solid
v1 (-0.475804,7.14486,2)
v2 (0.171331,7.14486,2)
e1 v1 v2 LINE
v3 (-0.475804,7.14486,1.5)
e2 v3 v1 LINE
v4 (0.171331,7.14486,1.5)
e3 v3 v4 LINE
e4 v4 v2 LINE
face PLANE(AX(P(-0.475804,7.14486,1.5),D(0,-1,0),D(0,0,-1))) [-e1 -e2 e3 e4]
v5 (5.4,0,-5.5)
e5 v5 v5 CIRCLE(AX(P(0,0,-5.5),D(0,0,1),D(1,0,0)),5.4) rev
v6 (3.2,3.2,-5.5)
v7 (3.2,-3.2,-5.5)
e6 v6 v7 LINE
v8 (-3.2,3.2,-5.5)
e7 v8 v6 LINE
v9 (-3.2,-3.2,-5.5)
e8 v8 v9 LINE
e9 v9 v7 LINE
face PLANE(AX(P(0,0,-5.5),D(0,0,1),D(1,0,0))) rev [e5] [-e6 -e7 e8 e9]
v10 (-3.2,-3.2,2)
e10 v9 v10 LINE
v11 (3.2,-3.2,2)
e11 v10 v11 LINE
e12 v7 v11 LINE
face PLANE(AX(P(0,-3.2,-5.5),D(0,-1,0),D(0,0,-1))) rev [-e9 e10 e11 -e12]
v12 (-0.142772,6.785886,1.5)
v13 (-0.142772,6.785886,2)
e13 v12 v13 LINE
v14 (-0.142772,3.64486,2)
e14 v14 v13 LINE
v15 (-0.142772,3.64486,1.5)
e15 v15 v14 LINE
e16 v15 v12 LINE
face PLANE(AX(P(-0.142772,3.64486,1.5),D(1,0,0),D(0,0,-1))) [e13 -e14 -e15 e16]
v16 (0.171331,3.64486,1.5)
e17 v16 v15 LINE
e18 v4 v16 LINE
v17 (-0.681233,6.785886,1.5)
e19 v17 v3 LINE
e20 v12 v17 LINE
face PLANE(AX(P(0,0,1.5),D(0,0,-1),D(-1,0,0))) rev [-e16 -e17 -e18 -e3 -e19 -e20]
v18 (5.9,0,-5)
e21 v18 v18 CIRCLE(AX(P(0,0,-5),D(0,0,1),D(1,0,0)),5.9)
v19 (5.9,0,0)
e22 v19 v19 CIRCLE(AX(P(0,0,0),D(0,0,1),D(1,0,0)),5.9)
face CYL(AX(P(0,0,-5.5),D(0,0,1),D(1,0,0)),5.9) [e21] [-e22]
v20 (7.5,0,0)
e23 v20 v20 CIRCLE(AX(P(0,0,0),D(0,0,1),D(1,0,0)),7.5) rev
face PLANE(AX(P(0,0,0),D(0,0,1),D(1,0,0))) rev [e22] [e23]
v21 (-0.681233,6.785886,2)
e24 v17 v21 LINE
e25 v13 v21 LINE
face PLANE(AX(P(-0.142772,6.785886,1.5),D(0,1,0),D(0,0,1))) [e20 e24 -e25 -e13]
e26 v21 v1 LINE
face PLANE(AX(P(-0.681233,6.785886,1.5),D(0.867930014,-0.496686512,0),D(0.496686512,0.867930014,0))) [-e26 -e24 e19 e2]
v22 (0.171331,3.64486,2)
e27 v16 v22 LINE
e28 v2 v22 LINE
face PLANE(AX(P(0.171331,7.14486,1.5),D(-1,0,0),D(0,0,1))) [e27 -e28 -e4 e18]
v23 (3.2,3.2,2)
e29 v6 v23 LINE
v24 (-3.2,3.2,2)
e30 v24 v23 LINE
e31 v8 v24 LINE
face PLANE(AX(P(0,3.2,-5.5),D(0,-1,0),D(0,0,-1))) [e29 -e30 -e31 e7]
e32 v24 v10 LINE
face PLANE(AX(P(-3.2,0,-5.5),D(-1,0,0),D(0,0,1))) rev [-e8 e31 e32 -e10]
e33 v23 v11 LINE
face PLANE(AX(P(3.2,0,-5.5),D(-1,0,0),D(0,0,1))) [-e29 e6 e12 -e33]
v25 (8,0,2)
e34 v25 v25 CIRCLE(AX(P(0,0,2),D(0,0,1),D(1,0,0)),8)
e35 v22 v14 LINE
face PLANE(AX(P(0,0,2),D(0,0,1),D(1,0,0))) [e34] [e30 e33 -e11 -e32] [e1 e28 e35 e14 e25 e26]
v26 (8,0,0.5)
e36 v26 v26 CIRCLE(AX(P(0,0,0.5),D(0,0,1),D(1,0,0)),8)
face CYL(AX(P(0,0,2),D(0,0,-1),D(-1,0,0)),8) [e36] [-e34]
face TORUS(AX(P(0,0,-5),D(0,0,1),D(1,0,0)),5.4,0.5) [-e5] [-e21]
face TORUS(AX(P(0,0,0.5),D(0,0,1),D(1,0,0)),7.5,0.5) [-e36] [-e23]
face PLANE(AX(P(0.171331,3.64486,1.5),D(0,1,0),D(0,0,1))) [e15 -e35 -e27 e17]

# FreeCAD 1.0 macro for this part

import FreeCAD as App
import Part
import Sketcher

V = App.Vector


def edges_at(feature, points):
    """Names of the edges that pass closest to the given points."""
    edges = feature.Shape.Edges
    near = lambda p: min(range(len(edges)), key=lambda i: edges[i].distToShape(Part.Vertex(*p))[0])
    return sorted({f"Edge{near(p) + 1}" for p in points})


def add_polygon(sketch, points):
    """Adds a closed chain of lines whose ends are joined by coincident constraints."""
    first, n = sketch.GeometryCount, len(points)
    for a, b in zip(points, points[1:] + points[:1]):
        sketch.addGeometry(Part.LineSegment(App.Vector(*a, 0), App.Vector(*b, 0)), False)
    for i in range(n):
        sketch.addConstraint(Sketcher.Constraint("Coincident", first + i, 2, first + (i + 1) % n, 1))

doc = App.newDocument("Part")
params = doc.addObject("Spreadsheet::Sheet", "Params")
for row, (alias, value) in enumerate([
    ("sketch1_diameter", "11.8 mm"),
    ("sketch1_width", "6.4 mm"),
    ("pad1_length", "5.5 mm"),
    ("sketch2_diameter", "16 mm"),
    ("sketch2_width", "6.4 mm"),
    ("pad2_length", "2 mm"),
    ("fillet_radius", "0.5 mm"),
    ("sketch3_height", "3.5 mm"),
    ("pocket1_length", "0.5 mm"),
], start=1):
    params.set(f"A{row}", alias)
    params.set(f"B{row}", "=" + value)
    params.setAlias(f"B{row}", alias)

body = doc.addObject("PartDesign::Body", "Body")

# Sketch on XY plane
sketch1 = body.newObject("Sketcher::SketchObject", "Sketch")
sketch1.AttachmentSupport = (doc.getObject("XY_Plane"), [""])
sketch1.MapMode = "FlatFace"
sketch1.addGeometry(Part.Circle(V(0, 0, 0), V(0, 0, 1), 5.9), False)  # 0
add_polygon(sketch1, [(3.2, -3.2), (-3.2, -3.2), (-3.2, 3.2), (3.2, 3.2)])  # lines 1-4
sketch1.addConstraint([
    Sketcher.Constraint("Horizontal", 1),
    Sketcher.Constraint("Vertical", 2),
    Sketcher.Constraint("Horizontal", 3),
    Sketcher.Constraint("Vertical", 4),
    Sketcher.Constraint("Coincident", 0, 3, -1, 1),
    Sketcher.Constraint("Symmetric", 1, 2, 3, 2, -1, 1),
    Sketcher.Constraint("Equal", 3, 2),
    Sketcher.Constraint("Diameter", 0, 11.8),
    Sketcher.Constraint("DistanceX", 1, 2, 1, 1, 6.4),
])
sketch1.setExpression("Constraints[11]", "Params.sketch1_diameter")
sketch1.setExpression("Constraints[12]", "Params.sketch1_width")
pad1 = body.newObject("PartDesign::Pad", "Pad")
pad1.Profile = sketch1
pad1.setExpression("Length", "Params.pad1_length")
pad1.Reversed = True

# Sketch on XY plane
sketch2 = body.newObject("Sketcher::SketchObject", "Sketch001")
sketch2.AttachmentSupport = (doc.getObject("XY_Plane"), [""])
sketch2.MapMode = "FlatFace"
sketch2.AttachmentOffset = App.Placement(V(0, 0, 2), App.Rotation())
sketch2.addGeometry(Part.Circle(V(0, 0, 0), V(0, 0, 1), 8), False)  # 0
add_polygon(sketch2, [(-3.2, -3.2), (-3.2, 3.2), (3.2, 3.2), (3.2, -3.2)])  # lines 1-4
sketch2.addConstraint([
    Sketcher.Constraint("Vertical", 1),
    Sketcher.Constraint("Horizontal", 2),
    Sketcher.Constraint("Vertical", 3),
    Sketcher.Constraint("Horizontal", 4),
    Sketcher.Constraint("Coincident", 0, 3, -1, 1),
    Sketcher.Constraint("Symmetric", 1, 2, 3, 2, -1, 1),
    Sketcher.Constraint("Equal", 4, 1),
    Sketcher.Constraint("Diameter", 0, 16.0),
    Sketcher.Constraint("DistanceX", 2, 1, 2, 2, 6.4),
])
sketch2.setExpression("Constraints[11]", "Params.sketch2_diameter")
sketch2.setExpression("Constraints[12]", "Params.sketch2_width")
pad2 = body.newObject("PartDesign::Pad", "Pad001")
pad2.Profile = sketch2
pad2.setExpression("Length", "Params.pad2_length")
pad2.Reversed = True
doc.recompute()

fillet = body.newObject("PartDesign::Fillet", "Fillet")
fillet.Base = (pad2, edges_at(pad2, [(-8, 0, 0), (-5.9, 0, -5.5)]))
fillet.setExpression("Radius", "Params.fillet_radius")

# Sketch on XY plane
sketch3 = body.newObject("Sketcher::SketchObject", "Sketch002")
sketch3.AttachmentSupport = (doc.getObject("XY_Plane"), [""])
sketch3.MapMode = "FlatFace"
sketch3.AttachmentOffset = App.Placement(V(0, 0, 2), App.Rotation())
add_polygon(sketch3, [(0.171331, 7.14486), (-0.475804, 7.14486), (-0.681233, 6.785886), (-0.142772, 6.785886), (-0.142772, 3.64486), (0.171331, 3.64486)])  # lines 0-5
sketch3.addConstraint([
    Sketcher.Constraint("Horizontal", 0),
    Sketcher.Constraint("Horizontal", 2),
    Sketcher.Constraint("Vertical", 3),
    Sketcher.Constraint("Horizontal", 4),
    Sketcher.Constraint("Vertical", 5),
    Sketcher.Constraint("DistanceY", 5, 1, 5, 2, 3.5),
    Sketcher.Constraint("Distance", 1, 0.413598),
    Sketcher.Constraint("DistanceX", 2, 1, 2, 2, 0.538462),
    Sketcher.Constraint("DistanceX", 0, 2, 0, 1, 0.647135),
    Sketcher.Constraint("DistanceX", 4, 1, 4, 2, 0.314103),
    Sketcher.Constraint("DistanceY", -1, 1, 0, 2, 7.14486),
    Sketcher.Constraint("DistanceX", 2, 2, -1, 1, 0.142772),
])
sketch3.setExpression("Constraints[11]", "Params.sketch3_height")
pocket1 = body.newObject("PartDesign::Pocket", "Pocket")
pocket1.Profile = sketch3
pocket1.setExpression("Length", "Params.pocket1_length")

doc.recompute()
